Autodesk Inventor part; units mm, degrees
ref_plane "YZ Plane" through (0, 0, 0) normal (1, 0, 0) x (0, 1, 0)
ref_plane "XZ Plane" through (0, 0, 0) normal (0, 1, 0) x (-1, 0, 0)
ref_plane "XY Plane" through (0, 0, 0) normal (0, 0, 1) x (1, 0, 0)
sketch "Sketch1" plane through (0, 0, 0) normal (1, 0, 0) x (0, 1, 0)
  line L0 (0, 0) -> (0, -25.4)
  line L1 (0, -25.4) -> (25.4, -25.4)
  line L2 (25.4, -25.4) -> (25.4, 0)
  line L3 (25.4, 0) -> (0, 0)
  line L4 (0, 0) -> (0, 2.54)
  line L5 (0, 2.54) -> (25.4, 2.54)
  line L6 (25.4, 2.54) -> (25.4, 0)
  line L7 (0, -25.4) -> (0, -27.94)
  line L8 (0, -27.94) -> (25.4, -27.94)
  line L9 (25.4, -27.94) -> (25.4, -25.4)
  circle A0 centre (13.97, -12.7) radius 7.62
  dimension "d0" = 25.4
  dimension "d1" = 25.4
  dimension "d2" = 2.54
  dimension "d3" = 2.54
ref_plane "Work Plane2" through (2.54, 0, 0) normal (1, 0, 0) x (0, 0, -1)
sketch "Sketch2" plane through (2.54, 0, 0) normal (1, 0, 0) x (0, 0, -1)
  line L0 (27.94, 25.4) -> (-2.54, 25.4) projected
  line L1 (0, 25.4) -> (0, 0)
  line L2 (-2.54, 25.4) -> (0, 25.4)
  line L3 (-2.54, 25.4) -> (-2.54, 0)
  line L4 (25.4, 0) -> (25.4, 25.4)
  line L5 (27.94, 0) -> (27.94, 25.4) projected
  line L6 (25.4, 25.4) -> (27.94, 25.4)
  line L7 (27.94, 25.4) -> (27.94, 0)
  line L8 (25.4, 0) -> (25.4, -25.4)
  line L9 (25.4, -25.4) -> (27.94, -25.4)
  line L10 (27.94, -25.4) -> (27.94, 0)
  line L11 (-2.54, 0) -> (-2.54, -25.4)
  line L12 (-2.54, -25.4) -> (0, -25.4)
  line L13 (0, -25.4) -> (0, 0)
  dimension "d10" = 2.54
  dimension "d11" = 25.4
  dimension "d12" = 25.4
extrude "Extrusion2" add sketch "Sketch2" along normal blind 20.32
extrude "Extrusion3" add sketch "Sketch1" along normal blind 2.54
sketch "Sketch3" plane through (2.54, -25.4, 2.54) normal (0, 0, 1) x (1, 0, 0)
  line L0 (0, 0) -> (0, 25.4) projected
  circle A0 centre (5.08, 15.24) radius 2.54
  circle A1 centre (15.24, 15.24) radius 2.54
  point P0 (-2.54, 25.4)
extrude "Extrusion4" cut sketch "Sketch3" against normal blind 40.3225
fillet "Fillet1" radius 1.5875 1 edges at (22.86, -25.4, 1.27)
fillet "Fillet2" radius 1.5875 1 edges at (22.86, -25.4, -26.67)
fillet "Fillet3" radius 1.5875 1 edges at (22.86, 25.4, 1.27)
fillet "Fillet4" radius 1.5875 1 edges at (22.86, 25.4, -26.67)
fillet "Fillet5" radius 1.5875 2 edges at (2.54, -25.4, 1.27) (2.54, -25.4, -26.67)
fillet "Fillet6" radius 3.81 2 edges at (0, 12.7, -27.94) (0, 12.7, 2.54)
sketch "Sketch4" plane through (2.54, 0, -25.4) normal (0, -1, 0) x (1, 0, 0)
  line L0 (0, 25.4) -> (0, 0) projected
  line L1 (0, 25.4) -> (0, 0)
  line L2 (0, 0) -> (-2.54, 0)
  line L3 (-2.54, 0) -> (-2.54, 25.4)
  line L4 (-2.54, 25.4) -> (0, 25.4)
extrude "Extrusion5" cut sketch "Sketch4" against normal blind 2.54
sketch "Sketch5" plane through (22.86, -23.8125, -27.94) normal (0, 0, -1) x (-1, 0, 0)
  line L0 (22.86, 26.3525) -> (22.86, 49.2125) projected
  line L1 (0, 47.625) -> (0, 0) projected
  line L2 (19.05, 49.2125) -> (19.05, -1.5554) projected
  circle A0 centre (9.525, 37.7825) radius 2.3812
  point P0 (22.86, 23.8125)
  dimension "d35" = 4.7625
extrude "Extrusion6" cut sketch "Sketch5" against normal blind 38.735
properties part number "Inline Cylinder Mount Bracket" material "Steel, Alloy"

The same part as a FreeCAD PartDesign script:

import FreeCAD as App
import Part
import Sketcher
from FreeCAD import Vector
Q = App.Units.Quantity


def edges_at(feature, points):
    """Names of the edges that pass closest to the given points."""
    edges = feature.Shape.Edges
    near = lambda p: min(range(len(edges)), key=lambda i: edges[i].distToShape(Part.Vertex(*p))[0])
    return sorted({f"Edge{near(p) + 1}" for p in points})

doc = App.newDocument("Part")
body = doc.addObject("PartDesign::Body", "Body")
body.AllowCompound = True

# Sketch on YZ plane
sketch1 = doc.addObject("Sketcher::SketchObject", "Sketch")
body.addObject(sketch1)
sketch1.AttachmentSupport = (doc.YZ_Plane, [""])
sketch1.MapMode = "FlatFace"
sketch1.AttachmentOffset = App.Placement(Vector(0, 0, 0.1 * 25.4), App.Rotation())
sketch1.addGeometry(Part.LineSegment(Vector(-25.4, -27.9, 0), Vector(25.4, -27.9, 0)), False)
sketch1.addGeometry(Part.LineSegment(Vector(25.4, -27.9, 0), Vector(25.4, -25.4, 0)), False)
sketch1.addGeometry(Part.LineSegment(Vector(25.4, -25.4, 0), Vector(-25.4, -25.4, 0)), False)
sketch1.addGeometry(Part.LineSegment(Vector(-25.4, -25.4, 0), Vector(-25.4, -27.9, 0)), False)
sketch1.addGeometry(Part.LineSegment(Vector(-25.4, 0, 0), Vector(25.4, 0, 0)), False)
sketch1.addGeometry(Part.LineSegment(Vector(25.4, 0, 0), Vector(25.4, 2.5, 0)), False)
sketch1.addGeometry(Part.LineSegment(Vector(25.4, 2.5, 0), Vector(-25.4, 2.5, 0)), False)
sketch1.addGeometry(Part.LineSegment(Vector(-25.4, 2.5, 0), Vector(-25.4, 0, 0)), False)
sketch1.addConstraint(Sketcher.Constraint("Coincident", 0, 2, 1, 1))
sketch1.addConstraint(Sketcher.Constraint("Coincident", 1, 2, 2, 1))
sketch1.addConstraint(Sketcher.Constraint("Coincident", 2, 2, 3, 1))
sketch1.addConstraint(Sketcher.Constraint("Coincident", 3, 2, 0, 1))
sketch1.addConstraint(Sketcher.Constraint("Coincident", 4, 2, 5, 1))
sketch1.addConstraint(Sketcher.Constraint("Coincident", 5, 2, 6, 1))
sketch1.addConstraint(Sketcher.Constraint("Coincident", 6, 2, 7, 1))
sketch1.addConstraint(Sketcher.Constraint("Coincident", 7, 2, 4, 1))
sketch1.addConstraint(Sketcher.Constraint("Horizontal", 0))
sketch1.addConstraint(Sketcher.Constraint("Vertical", 1))
sketch1.addConstraint(Sketcher.Constraint("Horizontal", 2))
sketch1.addConstraint(Sketcher.Constraint("Vertical", 3))
sketch1.addConstraint(Sketcher.Constraint("Horizontal", 4))
sketch1.addConstraint(Sketcher.Constraint("Vertical", 5))
sketch1.addConstraint(Sketcher.Constraint("Horizontal", 6))
sketch1.addConstraint(Sketcher.Constraint("Vertical", 7))
sketch1.addConstraint(Sketcher.Constraint("Symmetric", 4, 2, 7, 2, -1, 1))
sketch1.addConstraint(Sketcher.Constraint("Vertical", 1, 2, 4, 2))
sketch1.addConstraint(Sketcher.Constraint("Vertical", 3, 2, 6, 2))
sketch1.addConstraint(Sketcher.Constraint("Equal", 3, 5))
sketch1.addConstraint(Sketcher.Constraint("DistanceY", 1, 1, 1, 2, Q("0.1 in")))
sketch1.addConstraint(Sketcher.Constraint("DistanceX", -1, 1, 0, 2, Q("1 in")))
sketch1.addConstraint(Sketcher.Constraint("DistanceY", 1, 2, -1, 1, Q("1 in")))
pad1 = doc.addObject("PartDesign::Pad", "Pad")
body.addObject(pad1)
pad1.Profile = sketch1
pad1.Length = Q("0.8 in")

# Sketch on YZ plane
sketch2 = doc.addObject("Sketcher::SketchObject", "Sketch001")
body.addObject(sketch2)
sketch2.AttachmentSupport = (doc.YZ_Plane, [""])
sketch2.MapMode = "FlatFace"
sketch2.addGeometry(Part.LineSegment(Vector(25, 3, 0), Vector(0, 3, 0)), False)
sketch2.addGeometry(Part.LineSegment(Vector(0, 3, 0), Vector(0, -28, 0)), False)
sketch2.addGeometry(Part.LineSegment(Vector(0, -28, 0), Vector(25, -28, 0)), False)
sketch2.addGeometry(Part.LineSegment(Vector(25, -28, 0), Vector(25, 3, 0)), False)
sketch2.addGeometry(Part.Circle(Vector(14, -13, 0), Vector(0, 0, 1), 8), False)
sketch2.addConstraint(Sketcher.Constraint("Coincident", 0, 2, 1, 1))
sketch2.addConstraint(Sketcher.Constraint("Coincident", 1, 2, 2, 1))
sketch2.addConstraint(Sketcher.Constraint("Coincident", 2, 2, 3, 1))
sketch2.addConstraint(Sketcher.Constraint("Coincident", 3, 2, 0, 1))
sketch2.addConstraint(Sketcher.Constraint("Horizontal", 0))
sketch2.addConstraint(Sketcher.Constraint("Vertical", 1))
sketch2.addConstraint(Sketcher.Constraint("Horizontal", 2))
sketch2.addConstraint(Sketcher.Constraint("Vertical", 3))
sketch2.addConstraint(Sketcher.Constraint("PointOnObject", 0, 2, -2))
sketch2.addConstraint(Sketcher.Constraint("DistanceX", 0, 2, 0, 1, Q("1 in")))
sketch2.addConstraint(Sketcher.Constraint("Diameter", 4, Q("0.6 in")))
sketch2.addConstraint(Sketcher.Constraint("DistanceY", -1, 1, 0, 2, Q("0.1 in")))
sketch2.addConstraint(Sketcher.Constraint("DistanceY", 1, 2, 1, 1, Q("1.2 in")))
sketch2.addConstraint(Sketcher.Constraint("DistanceY", 4, 3, -1, 1, Q("0.5 in")))
sketch2.addConstraint(Sketcher.Constraint("DistanceX", -1, 1, 4, 3, Q("0.55 in")))
pad2 = doc.addObject("PartDesign::Pad", "Pad001")
body.addObject(pad2)
pad2.Profile = sketch2
pad2.Length = Q("0.1 in")

# Sketch on XY plane
sketch3 = doc.addObject("Sketcher::SketchObject", "Sketch002")
body.addObject(sketch3)
sketch3.AttachmentSupport = (doc.XY_Plane, [""])
sketch3.MapMode = "FlatFace"
sketch3.AttachmentOffset = App.Placement(Vector(0, 0, 0.1 * 25.4), App.Rotation())
sketch3.addGeometry(Part.Circle(Vector(7.6, -10.2, 0), Vector(0, 0, 1), 2.5), False)
sketch3.addGeometry(Part.Circle(Vector(17.8, -10.2, 0), Vector(0, 0, 1), 2.5), False)
sketch3.addConstraint(Sketcher.Constraint("Equal", 0, 1))
sketch3.addConstraint(Sketcher.Constraint("Horizontal", 0, 3, 1, 3))
sketch3.addConstraint(Sketcher.Constraint("Diameter", 0, Q("0.2 in")))
sketch3.addConstraint(Sketcher.Constraint("DistanceX", -1, 1, 0, 3, Q("0.3 in")))
sketch3.addConstraint(Sketcher.Constraint("DistanceY", 0, 3, -1, 1, Q("0.4 in")))
sketch3.addConstraint(Sketcher.Constraint("DistanceX", -1, 1, 1, 3, Q("0.7 in")))
pocket1 = doc.addObject("PartDesign::Pocket", "Pocket")
body.addObject(pocket1)
pocket1.Profile = sketch3
pocket1.Length = Q("1.5875 in")
doc.recompute()

fillet = doc.addObject("PartDesign::Fillet", "Fillet")
body.addObject(fillet)
fillet.Base = (pocket1, edges_at(pocket1, [(22.86, -25.4, 1.27)]))
fillet.Radius = Q("0.0625 in")
doc.recompute()

fillet2 = doc.addObject("PartDesign::Fillet", "Fillet001")
body.addObject(fillet2)
fillet2.Base = (fillet, edges_at(fillet, [(22.86, -25.4, -26.67)]))
fillet2.Radius = Q("0.0625 in")
doc.recompute()

fillet3 = doc.addObject("PartDesign::Fillet", "Fillet002")
body.addObject(fillet3)
fillet3.Base = (fillet2, edges_at(fillet2, [(22.86, 25.4, 1.27)]))
fillet3.Radius = Q("0.0625 in")
doc.recompute()

fillet4 = doc.addObject("PartDesign::Fillet", "Fillet003")
body.addObject(fillet4)
fillet4.Base = (fillet3, edges_at(fillet3, [(22.86, 25.4, -26.67)]))
fillet4.Radius = Q("0.0625 in")
doc.recompute()

fillet5 = doc.addObject("PartDesign::Fillet", "Fillet004")
body.addObject(fillet5)
fillet5.Base = (fillet4, edges_at(fillet4, [(2.54, -25.4, 1.27), (2.54, -25.4, -26.67)]))
fillet5.Radius = Q("0.0625 in")
doc.recompute()

fillet6 = doc.addObject("PartDesign::Fillet", "Fillet005")
body.addObject(fillet6)
fillet6.Base = (fillet5, edges_at(fillet5, [(0, 12.7, -27.94), (0, 12.7, 2.54)]))
fillet6.Radius = Q("0.15 in")

# Sketch on XZ plane
sketch4 = doc.addObject("Sketcher::SketchObject", "Sketch003")
body.addObject(sketch4)
sketch4.AttachmentSupport = (doc.XZ_Plane, [""])
sketch4.MapMode = "FlatFace"
sketch4.addGeometry(Part.LineSegment(Vector(2.5, -25.4, 0), Vector(2.5, 0, 0)), False)
sketch4.addGeometry(Part.LineSegment(Vector(2.5, 0, 0), Vector(0, 0, 0)), False)
sketch4.addGeometry(Part.LineSegment(Vector(0, 0, 0), Vector(0, -25.4, 0)), False)
sketch4.addGeometry(Part.LineSegment(Vector(0, -25.4, 0), Vector(2.5, -25.4, 0)), False)
sketch4.addConstraint(Sketcher.Constraint("Coincident", 0, 2, 1, 1))
sketch4.addConstraint(Sketcher.Constraint("Coincident", 1, 2, 2, 1))
sketch4.addConstraint(Sketcher.Constraint("Coincident", 2, 2, 3, 1))
sketch4.addConstraint(Sketcher.Constraint("Coincident", 3, 2, 0, 1))
sketch4.addConstraint(Sketcher.Constraint("Vertical", 0))
sketch4.addConstraint(Sketcher.Constraint("Horizontal", 1))
sketch4.addConstraint(Sketcher.Constraint("Vertical", 2))
sketch4.addConstraint(Sketcher.Constraint("Horizontal", 3))
sketch4.addConstraint(Sketcher.Constraint("Coincident", 1, 2, -1, 1))
sketch4.addConstraint(Sketcher.Constraint("DistanceY", 0, 1, 0, 2, Q("1 in")))
sketch4.addConstraint(Sketcher.Constraint("DistanceX", 1, 2, 1, 1, Q("0.1 in")))
pocket2 = doc.addObject("PartDesign::Pocket", "Pocket001")
body.addObject(pocket2)
pocket2.Profile = sketch4
pocket2.Length = Q("0.1 in")

# Sketch on XY plane
sketch5 = doc.addObject("Sketcher::SketchObject", "Sketch004")
body.addObject(sketch5)
sketch5.AttachmentSupport = (doc.XY_Plane, [""])
sketch5.MapMode = "FlatFace"
sketch5.AttachmentOffset = App.Placement(Vector(0, 0, -1.1 * 25.4), App.Rotation())
sketch5.addGeometry(Part.Circle(Vector(13.3, 14, 0), Vector(0, 0, 1), 2.4), False)
sketch5.addConstraint(Sketcher.Constraint("Diameter", 0, Q("0.1875 in")))
sketch5.addConstraint(Sketcher.Constraint("DistanceY", -1, 1, 0, 3, Q("0.55 in")))
sketch5.addConstraint(Sketcher.Constraint("DistanceX", -1, 1, 0, 3, Q("0.525 in")))
pocket3 = doc.addObject("PartDesign::Pocket", "Pocket002")
body.addObject(pocket3)
pocket3.Profile = sketch5
pocket3.Length = Q("1.525 in")
pocket3.Reversed = True

doc.recompute()
